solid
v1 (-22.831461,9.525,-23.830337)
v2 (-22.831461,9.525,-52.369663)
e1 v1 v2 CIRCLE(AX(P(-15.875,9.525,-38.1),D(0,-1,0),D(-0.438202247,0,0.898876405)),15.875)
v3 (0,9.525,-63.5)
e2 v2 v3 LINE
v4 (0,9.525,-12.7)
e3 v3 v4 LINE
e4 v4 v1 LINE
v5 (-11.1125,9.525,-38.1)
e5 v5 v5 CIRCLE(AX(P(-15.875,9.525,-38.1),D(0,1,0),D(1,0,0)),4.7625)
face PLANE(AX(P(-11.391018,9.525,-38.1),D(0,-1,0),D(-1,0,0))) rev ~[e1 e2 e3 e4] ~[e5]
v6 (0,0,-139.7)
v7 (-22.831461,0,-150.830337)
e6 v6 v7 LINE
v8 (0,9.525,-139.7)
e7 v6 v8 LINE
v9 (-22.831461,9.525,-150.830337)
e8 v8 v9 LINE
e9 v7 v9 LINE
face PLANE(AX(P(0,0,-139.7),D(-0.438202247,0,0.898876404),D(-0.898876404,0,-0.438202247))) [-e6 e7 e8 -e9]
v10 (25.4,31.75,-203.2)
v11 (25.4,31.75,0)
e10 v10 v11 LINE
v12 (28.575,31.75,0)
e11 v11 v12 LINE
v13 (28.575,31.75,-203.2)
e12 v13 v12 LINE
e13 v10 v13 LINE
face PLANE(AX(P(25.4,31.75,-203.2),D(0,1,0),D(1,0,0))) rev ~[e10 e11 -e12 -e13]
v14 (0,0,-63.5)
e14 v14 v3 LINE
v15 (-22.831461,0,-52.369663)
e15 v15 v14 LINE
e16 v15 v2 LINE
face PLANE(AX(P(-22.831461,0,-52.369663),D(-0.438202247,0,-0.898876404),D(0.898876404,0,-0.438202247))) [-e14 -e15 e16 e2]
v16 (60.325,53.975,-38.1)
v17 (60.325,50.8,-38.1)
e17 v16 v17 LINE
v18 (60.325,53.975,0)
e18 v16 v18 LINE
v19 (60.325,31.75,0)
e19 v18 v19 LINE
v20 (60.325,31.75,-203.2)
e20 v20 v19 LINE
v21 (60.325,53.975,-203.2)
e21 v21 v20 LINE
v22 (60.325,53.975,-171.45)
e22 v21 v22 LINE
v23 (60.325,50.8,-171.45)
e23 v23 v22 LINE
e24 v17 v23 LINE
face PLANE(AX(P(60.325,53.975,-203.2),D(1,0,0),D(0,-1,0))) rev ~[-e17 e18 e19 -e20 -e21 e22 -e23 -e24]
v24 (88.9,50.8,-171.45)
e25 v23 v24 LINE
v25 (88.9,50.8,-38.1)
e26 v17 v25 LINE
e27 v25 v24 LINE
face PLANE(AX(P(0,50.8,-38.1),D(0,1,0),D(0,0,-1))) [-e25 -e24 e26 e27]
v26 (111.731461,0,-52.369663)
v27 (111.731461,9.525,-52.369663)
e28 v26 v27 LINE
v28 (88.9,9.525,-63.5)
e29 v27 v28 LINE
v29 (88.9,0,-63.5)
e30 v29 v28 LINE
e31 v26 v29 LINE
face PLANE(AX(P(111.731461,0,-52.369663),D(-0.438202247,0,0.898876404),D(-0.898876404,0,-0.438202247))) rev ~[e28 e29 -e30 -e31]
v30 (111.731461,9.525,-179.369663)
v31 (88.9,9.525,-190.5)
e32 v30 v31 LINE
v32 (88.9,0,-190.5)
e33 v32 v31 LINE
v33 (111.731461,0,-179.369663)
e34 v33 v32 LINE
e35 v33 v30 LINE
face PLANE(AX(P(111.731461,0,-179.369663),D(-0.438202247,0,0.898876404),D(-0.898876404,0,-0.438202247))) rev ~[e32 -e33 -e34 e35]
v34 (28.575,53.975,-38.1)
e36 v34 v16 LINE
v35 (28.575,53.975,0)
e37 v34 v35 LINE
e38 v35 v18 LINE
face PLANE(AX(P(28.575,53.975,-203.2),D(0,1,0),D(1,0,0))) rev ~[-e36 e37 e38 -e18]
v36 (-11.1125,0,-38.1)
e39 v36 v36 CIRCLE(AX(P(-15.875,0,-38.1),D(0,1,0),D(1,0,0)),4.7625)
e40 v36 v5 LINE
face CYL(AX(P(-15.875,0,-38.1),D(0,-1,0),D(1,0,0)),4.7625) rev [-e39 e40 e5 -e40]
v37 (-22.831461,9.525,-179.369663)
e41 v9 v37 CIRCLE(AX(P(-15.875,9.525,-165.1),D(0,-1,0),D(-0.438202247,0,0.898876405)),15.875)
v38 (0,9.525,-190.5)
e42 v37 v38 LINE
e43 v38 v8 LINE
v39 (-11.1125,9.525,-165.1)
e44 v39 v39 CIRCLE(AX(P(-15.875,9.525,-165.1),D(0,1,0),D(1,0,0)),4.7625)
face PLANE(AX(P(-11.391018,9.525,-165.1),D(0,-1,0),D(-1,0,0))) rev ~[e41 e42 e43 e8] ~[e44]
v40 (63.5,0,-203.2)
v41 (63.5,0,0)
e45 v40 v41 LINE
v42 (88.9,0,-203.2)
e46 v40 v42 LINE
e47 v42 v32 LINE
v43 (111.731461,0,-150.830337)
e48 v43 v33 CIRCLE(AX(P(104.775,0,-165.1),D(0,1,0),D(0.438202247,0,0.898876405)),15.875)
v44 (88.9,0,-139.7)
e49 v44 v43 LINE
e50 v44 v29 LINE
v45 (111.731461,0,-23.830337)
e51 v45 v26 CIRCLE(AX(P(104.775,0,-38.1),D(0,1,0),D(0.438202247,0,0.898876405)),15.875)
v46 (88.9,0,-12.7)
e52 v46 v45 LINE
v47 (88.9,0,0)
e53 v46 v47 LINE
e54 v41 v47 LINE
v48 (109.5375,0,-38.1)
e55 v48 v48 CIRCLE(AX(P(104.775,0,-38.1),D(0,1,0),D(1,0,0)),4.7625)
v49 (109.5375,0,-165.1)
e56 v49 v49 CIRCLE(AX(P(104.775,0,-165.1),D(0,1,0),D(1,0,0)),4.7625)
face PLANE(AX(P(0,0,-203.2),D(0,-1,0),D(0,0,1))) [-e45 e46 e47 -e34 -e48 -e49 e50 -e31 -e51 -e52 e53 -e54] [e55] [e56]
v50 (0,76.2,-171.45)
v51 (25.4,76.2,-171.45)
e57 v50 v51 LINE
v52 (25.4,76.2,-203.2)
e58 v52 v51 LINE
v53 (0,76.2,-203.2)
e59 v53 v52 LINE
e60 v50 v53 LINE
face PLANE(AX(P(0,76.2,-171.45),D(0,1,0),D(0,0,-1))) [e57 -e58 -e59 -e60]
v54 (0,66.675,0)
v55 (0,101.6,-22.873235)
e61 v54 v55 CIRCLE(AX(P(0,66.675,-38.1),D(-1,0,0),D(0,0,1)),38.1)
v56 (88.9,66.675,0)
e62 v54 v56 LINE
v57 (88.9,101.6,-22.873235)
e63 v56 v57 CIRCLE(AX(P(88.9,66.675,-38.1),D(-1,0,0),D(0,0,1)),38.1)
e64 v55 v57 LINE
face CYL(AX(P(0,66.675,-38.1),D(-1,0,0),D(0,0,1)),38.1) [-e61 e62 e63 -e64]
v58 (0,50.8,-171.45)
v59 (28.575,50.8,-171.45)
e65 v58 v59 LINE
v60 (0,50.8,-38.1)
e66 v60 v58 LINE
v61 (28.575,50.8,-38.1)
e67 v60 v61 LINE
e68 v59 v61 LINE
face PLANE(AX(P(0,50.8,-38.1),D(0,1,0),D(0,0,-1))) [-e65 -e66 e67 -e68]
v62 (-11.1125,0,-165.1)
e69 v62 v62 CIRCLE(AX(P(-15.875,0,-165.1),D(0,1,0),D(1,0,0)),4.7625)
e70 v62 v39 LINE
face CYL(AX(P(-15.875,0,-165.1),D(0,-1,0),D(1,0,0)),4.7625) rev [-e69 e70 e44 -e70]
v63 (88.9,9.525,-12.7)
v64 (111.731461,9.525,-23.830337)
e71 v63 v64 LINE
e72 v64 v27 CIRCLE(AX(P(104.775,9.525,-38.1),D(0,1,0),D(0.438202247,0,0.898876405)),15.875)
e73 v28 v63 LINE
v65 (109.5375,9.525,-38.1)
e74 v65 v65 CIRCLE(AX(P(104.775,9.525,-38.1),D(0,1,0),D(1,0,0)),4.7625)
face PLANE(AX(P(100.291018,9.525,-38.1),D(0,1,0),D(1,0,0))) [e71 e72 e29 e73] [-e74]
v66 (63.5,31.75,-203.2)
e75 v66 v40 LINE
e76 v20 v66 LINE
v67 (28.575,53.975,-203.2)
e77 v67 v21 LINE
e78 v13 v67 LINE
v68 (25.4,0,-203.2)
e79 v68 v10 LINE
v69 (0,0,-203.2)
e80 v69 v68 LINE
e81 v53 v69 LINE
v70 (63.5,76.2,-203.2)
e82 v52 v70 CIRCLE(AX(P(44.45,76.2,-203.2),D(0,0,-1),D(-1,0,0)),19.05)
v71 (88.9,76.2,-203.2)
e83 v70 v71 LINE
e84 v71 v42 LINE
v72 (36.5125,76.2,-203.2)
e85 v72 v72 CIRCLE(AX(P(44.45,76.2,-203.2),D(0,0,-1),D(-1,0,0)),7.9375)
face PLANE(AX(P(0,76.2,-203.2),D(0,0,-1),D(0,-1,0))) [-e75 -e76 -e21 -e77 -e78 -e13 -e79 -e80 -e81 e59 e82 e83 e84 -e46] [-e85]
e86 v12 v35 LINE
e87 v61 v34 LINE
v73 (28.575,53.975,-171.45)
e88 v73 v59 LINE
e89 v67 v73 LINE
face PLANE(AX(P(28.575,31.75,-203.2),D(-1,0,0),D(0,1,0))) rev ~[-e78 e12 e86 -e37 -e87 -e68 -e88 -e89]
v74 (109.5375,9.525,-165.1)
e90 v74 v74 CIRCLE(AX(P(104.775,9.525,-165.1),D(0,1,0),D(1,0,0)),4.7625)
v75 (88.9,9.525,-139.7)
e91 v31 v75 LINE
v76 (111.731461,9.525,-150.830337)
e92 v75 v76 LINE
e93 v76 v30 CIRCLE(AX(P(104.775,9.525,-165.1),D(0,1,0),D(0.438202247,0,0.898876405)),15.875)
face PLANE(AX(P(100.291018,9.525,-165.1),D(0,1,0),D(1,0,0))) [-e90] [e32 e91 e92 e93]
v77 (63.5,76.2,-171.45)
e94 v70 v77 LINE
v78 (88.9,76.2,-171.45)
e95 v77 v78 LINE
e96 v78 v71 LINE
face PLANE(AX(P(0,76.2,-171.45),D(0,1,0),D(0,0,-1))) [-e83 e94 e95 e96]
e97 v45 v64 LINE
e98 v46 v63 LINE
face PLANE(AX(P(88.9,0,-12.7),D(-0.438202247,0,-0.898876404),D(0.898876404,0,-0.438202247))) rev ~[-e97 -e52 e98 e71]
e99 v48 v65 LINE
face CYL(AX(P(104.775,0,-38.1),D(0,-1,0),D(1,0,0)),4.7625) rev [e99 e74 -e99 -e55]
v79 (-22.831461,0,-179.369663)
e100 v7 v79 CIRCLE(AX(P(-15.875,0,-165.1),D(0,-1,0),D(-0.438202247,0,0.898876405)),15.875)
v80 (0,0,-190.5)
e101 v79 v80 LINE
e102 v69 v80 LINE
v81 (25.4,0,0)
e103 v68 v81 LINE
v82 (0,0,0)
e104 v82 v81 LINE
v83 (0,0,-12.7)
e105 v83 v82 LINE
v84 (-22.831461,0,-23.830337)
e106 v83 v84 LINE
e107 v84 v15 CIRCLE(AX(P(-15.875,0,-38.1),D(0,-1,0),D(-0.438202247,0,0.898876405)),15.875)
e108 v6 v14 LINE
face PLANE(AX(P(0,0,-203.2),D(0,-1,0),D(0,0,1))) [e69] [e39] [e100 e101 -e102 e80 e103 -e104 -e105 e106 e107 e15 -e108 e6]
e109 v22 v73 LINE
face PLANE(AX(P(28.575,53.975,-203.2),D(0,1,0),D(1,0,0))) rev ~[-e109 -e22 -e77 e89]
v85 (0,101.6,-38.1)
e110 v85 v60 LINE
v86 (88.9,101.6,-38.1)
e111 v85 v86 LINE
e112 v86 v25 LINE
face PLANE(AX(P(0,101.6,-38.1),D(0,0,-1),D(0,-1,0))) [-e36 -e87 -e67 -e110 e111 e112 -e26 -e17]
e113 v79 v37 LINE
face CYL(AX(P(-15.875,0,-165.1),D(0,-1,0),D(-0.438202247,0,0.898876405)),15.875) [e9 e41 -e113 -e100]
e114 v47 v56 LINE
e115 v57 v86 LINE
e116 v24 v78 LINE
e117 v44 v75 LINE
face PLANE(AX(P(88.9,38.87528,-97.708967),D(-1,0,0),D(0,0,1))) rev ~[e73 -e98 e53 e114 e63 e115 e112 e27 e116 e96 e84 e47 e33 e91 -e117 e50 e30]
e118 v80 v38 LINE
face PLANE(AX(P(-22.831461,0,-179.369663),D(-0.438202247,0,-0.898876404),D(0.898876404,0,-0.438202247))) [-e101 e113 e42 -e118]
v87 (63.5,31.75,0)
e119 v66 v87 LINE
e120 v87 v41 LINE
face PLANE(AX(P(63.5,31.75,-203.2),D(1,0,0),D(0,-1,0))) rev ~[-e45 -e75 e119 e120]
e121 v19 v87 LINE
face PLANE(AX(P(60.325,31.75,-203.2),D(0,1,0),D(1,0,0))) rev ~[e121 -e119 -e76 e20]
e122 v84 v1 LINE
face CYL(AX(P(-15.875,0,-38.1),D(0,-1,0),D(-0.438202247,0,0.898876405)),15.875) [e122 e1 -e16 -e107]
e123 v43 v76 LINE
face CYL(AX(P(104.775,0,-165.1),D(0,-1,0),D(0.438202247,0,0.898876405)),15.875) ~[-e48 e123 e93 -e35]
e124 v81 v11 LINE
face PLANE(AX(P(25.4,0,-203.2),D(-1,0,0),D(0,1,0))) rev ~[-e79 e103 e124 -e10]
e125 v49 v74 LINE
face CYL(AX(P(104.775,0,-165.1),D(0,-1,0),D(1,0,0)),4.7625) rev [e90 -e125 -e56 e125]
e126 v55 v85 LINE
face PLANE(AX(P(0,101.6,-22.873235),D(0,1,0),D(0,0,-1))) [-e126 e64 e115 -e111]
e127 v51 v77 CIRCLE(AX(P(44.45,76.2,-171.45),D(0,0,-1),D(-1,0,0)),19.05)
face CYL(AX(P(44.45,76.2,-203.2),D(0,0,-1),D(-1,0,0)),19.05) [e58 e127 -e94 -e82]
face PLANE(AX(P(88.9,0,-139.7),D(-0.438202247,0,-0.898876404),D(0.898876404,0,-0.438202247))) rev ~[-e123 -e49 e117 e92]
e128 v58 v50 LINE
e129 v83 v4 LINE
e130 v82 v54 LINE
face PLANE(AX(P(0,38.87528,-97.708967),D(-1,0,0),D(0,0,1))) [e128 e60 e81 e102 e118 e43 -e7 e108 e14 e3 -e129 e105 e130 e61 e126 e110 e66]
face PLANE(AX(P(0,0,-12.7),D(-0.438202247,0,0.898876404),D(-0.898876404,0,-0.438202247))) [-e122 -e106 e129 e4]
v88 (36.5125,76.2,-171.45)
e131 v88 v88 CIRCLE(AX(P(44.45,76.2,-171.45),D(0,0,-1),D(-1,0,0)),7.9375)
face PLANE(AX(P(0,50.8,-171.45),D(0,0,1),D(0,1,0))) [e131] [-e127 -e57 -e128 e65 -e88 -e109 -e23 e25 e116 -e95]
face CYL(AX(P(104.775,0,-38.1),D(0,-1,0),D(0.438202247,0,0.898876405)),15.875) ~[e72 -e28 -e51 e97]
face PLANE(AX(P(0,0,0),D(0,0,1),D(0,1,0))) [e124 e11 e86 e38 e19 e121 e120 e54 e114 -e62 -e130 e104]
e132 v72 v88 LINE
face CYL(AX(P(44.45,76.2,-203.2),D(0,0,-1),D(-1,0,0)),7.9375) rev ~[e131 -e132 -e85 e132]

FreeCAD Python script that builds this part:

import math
import FreeCAD as App
import Part
import Sketcher

V = App.Vector
Q = App.Units.Quantity


def add_polygon(sketch, points):
    """Adds a closed chain of lines whose ends are joined by coincident constraints."""
    first, n = sketch.GeometryCount, len(points)
    for a, b in zip(points, points[1:] + points[:1]):
        sketch.addGeometry(Part.LineSegment(App.Vector(*a, 0), App.Vector(*b, 0)), False)
    for i in range(n):
        sketch.addConstraint(Sketcher.Constraint("Coincident", first + i, 2, first + (i + 1) % n, 1))

doc = App.newDocument("Part")
body = doc.addObject("PartDesign::Body", "Body")

sketch1 = body.newObject("Sketcher::SketchObject", "Sketch")
sketch1.AttachmentSupport = (doc.getObject("YZ_Plane"), [""])
sketch1.MapMode = "FlatFace"
sketch1.addGeometry([
    Part.LineSegment(V(67, 0, 0), V(0, 0, 0)),
    Part.LineSegment(V(0, 0, 0), V(0, -203, 0)),
    Part.LineSegment(V(0, -203, 0), V(76, -203, 0)),
    Part.LineSegment(V(76, -203, 0), V(76, -171, 0)),
    Part.LineSegment(V(76, -171, 0), V(51, -171, 0)),
    Part.LineSegment(V(51, -171, 0), V(51, -38, 0)),
    Part.LineSegment(V(51, -38, 0), V(102, -38, 0)),
    Part.LineSegment(V(102, -38, 0), V(102, -23, 0)),
    Part.ArcOfCircle(Part.Circle(V(67, -38, 0), V(0, 0, 1), 38), math.radians(24), math.radians(90)),
], False)
sketch1.addConstraint([
    Sketcher.Constraint("Coincident", 0, 2, 1, 1),
    Sketcher.Constraint("Coincident", 1, 2, 2, 1),
    Sketcher.Constraint("Coincident", 2, 2, 3, 1),
    Sketcher.Constraint("Coincident", 3, 2, 4, 1),
    Sketcher.Constraint("Coincident", 4, 2, 5, 1),
    Sketcher.Constraint("Coincident", 5, 2, 6, 1),
    Sketcher.Constraint("Coincident", 6, 2, 7, 1),
    Sketcher.Constraint("Coincident", 7, 2, 8, 1),
    Sketcher.Constraint("Tangent", 8, 2, 0, 1),
    Sketcher.Constraint("Horizontal", 0),
    Sketcher.Constraint("Vertical", 1),
    Sketcher.Constraint("Horizontal", 2),
    Sketcher.Constraint("Vertical", 3),
    Sketcher.Constraint("Horizontal", 4),
    Sketcher.Constraint("Vertical", 5),
    Sketcher.Constraint("Horizontal", 6),
    Sketcher.Constraint("Vertical", 7),
    Sketcher.Constraint("Coincident", 0, 2, -1, 1),
    Sketcher.Constraint("Horizontal", 8, 3, 5, 2),
    Sketcher.Constraint("Radius", 8, Q("1.5 in")),
    Sketcher.Constraint("DistanceX", 2, 1, 2, 2, Q("3 in")),
    Sketcher.Constraint("DistanceX", 4, 2, 4, 1, Q("1 in")),
    Sketcher.Constraint("DistanceX", 6, 1, 6, 2, Q("2 in")),
    Sketcher.Constraint("DistanceY", 1, 2, 1, 1, Q("8 in")),
    Sketcher.Constraint("DistanceY", 3, 1, 3, 2, Q("1.25 in")),
    Sketcher.Constraint("DistanceX", 0, 2, 0, 1, Q("2.625 in")),
])
pad1 = body.newObject("PartDesign::Pad", "Pad")
pad1.Profile = sketch1
pad1.Length = Q("3.5 in")

sketch2 = body.newObject("Sketcher::SketchObject", "Sketch001")
sketch2.AttachmentSupport = (doc.getObject("XY_Plane"), [""])
sketch2.MapMode = "FlatFace"
sketch2.AttachmentOffset = App.Placement(V(0, 0, -8 * 25.4), App.Rotation())
add_polygon(sketch2, [(25.4, 0), (25.4, 31.8), (28.6, 31.8), (28.6, 54), (60.3, 54), (60.3, 31.8), (63.5, 31.8), (63.5, 0)])
sketch2.addConstraint([
    Sketcher.Constraint("Vertical", 0),
    Sketcher.Constraint("Horizontal", 1),
    Sketcher.Constraint("Vertical", 2),
    Sketcher.Constraint("Horizontal", 3),
    Sketcher.Constraint("Vertical", 4),
    Sketcher.Constraint("Horizontal", 5),
    Sketcher.Constraint("Vertical", 6),
    Sketcher.Constraint("Horizontal", 7),
    Sketcher.Constraint("PointOnObject", 6, 2, -1),
    Sketcher.Constraint("Horizontal", 1, 2, 4, 2),
    Sketcher.Constraint("Equal", 1, 5),
    Sketcher.Constraint("Equal", 3, 0),
    Sketcher.Constraint("DistanceX", 7, 2, 7, 1, Q("1.5 in")),
    Sketcher.Constraint("DistanceX", -1, 1, 0, 2, Q("1 in")),
    Sketcher.Constraint("DistanceX", 3, 1, 3, 2, Q("1.25 in")),
    Sketcher.Constraint("DistanceY", 2, 1, 2, 2, Q("0.875 in")),
])
pocket1 = body.newObject("PartDesign::Pocket", "Pocket")
pocket1.Profile = sketch2
pocket1.Length = Q("8 in")
pocket1.Reversed = True

sketch3 = body.newObject("Sketcher::SketchObject", "Sketch002")
sketch3.AttachmentSupport = (doc.getObject("XY_Plane"), [""])
sketch3.MapMode = "FlatFace"
sketch3.AttachmentOffset = App.Placement(V(0, 0, -8 * 25.4), App.Rotation())
sketch3.addGeometry([
    Part.LineSegment(V(64, 76, 0), V(25, 76, 0)),
    Part.ArcOfCircle(Part.Circle(V(44, 76, 0), V(0, 0, 1), 19), math.radians(0), math.radians(180)),
], False)
sketch3.addConstraint([
    Sketcher.Constraint("Coincident", 0, 1, 1, 1),
    Sketcher.Constraint("Coincident", 1, 2, 0, 2),
    Sketcher.Constraint("Horizontal", 0),
    Sketcher.Constraint("Horizontal", 1, 3, 0, 1),
    Sketcher.Constraint("Radius", 1, Q("0.75 in")),
    Sketcher.Constraint("DistanceY", -1, 1, 1, 3, Q("3 in")),
    Sketcher.Constraint("DistanceX", -1, 1, 1, 2, Q("1 in")),
])
pad2 = body.newObject("PartDesign::Pad", "Pad001")
pad2.Profile = sketch3
pad2.Length = Q("1.25 in")

sketch4 = body.newObject("Sketcher::SketchObject", "Sketch003")
sketch4.AttachmentSupport = (doc.getObject("XY_Plane"), [""])
sketch4.MapMode = "FlatFace"
sketch4.AttachmentOffset = App.Placement(V(0, 0, -8 * 25.4), App.Rotation())
sketch4.addGeometry(Part.Circle(V(44, 76, 0), V(0, 0, 1), 8), False)
sketch4.addConstraint([
    Sketcher.Constraint("Diameter", 0, Q("0.625 in")),
    Sketcher.Constraint("DistanceY", -1, 1, 0, 3, Q("3 in")),
    Sketcher.Constraint("DistanceX", -1, 1, 0, 3, Q("1.75 in")),
])
pocket2 = body.newObject("PartDesign::Pocket", "Pocket001")
pocket2.Profile = sketch4
pocket2.Length = Q("1.25 in")
pocket2.Reversed = True

sketch5 = body.newObject("Sketcher::SketchObject", "Sketch004")
sketch5.AttachmentSupport = (doc.getObject("XZ_Plane"), [""])
sketch5.MapMode = "FlatFace"
sketch5.addGeometry([
    Part.ArcOfCircle(Part.Circle(V(-15.9, -38.1, 0), V(0, 0, 1), 15.9), math.radians(116), math.radians(244)),
    Part.LineSegment(V(-22.8, -23.8, 0), V(0, -12.7, 0)),
    Part.LineSegment(V(0, -12.7, 0), V(0, -63.5, 0)),
    Part.LineSegment(V(0, -63.5, 0), V(-22.8, -52.4, 0)),
    Part.Circle(V(-15.9, -38.1, 0), V(0, 0, 1), 4.8),
    Part.ArcOfCircle(Part.Circle(V(-15.9, -165.1, 0), V(0, 0, 1), 15.9), math.radians(116), math.radians(244)),
    Part.LineSegment(V(-22.8, -150.8, 0), V(0, -139.7, 0)),
    Part.LineSegment(V(0, -139.7, 0), V(0, -190.5, 0)),
    Part.LineSegment(V(0, -190.5, 0), V(-22.8, -179.4, 0)),
    Part.Circle(V(-15.9, -165.1, 0), V(0, 0, 1), 4.8),
    Part.LineSegment(V(88.9, -139.7, 0), V(111.7, -150.8, 0)),
    Part.ArcOfCircle(Part.Circle(V(104.8, -165.1, 0), V(0, 0, 1), 15.9), math.radians(-64), math.radians(64)),
    Part.LineSegment(V(111.7, -179.4, 0), V(88.9, -190.5, 0)),
    Part.LineSegment(V(88.9, -190.5, 0), V(88.9, -139.7, 0)),
    Part.Circle(V(104.8, -165.1, 0), V(0, 0, 1), 4.8),
    Part.LineSegment(V(88.9, -12.7, 0), V(111.7, -23.8, 0)),
    Part.ArcOfCircle(Part.Circle(V(104.8, -38.1, 0), V(0, 0, 1), 15.9), math.radians(-64), math.radians(64)),
    Part.LineSegment(V(111.7, -52.4, 0), V(88.9, -63.5, 0)),
    Part.LineSegment(V(88.9, -63.5, 0), V(88.9, -12.7, 0)),
    Part.Circle(V(104.8, -38.1, 0), V(0, 0, 1), 4.8),
], False)
sketch5.addConstraint([
    Sketcher.Constraint("Tangent", 0, 1, 1, 1),
    Sketcher.Constraint("Coincident", 1, 2, 2, 1),
    Sketcher.Constraint("Coincident", 2, 2, 3, 1),
    Sketcher.Constraint("Tangent", 3, 2, 0, 2),
    Sketcher.Constraint("Tangent", 5, 1, 6, 1),
    Sketcher.Constraint("Coincident", 6, 2, 7, 1),
    Sketcher.Constraint("Coincident", 7, 2, 8, 1),
    Sketcher.Constraint("Tangent", 8, 2, 5, 2),
    Sketcher.Constraint("Tangent", 10, 2, 11, 2),
    Sketcher.Constraint("Tangent", 11, 1, 12, 1),
    Sketcher.Constraint("Coincident", 12, 2, 13, 1),
    Sketcher.Constraint("Coincident", 13, 2, 10, 1),
    Sketcher.Constraint("Tangent", 15, 2, 16, 2),
    Sketcher.Constraint("Tangent", 16, 1, 17, 1),
    Sketcher.Constraint("Coincident", 17, 2, 18, 1),
    Sketcher.Constraint("Coincident", 18, 2, 15, 1),
    Sketcher.Constraint("Vertical", 2),
    Sketcher.Constraint("Vertical", 7),
    Sketcher.Constraint("Vertical", 13),
    Sketcher.Constraint("Vertical", 18),
    Sketcher.Constraint("Coincident", 4, 3, 0, 3),
    Sketcher.Constraint("Coincident", 9, 3, 5, 3),
    Sketcher.Constraint("Coincident", 14, 3, 11, 3),
    Sketcher.Constraint("Coincident", 19, 3, 16, 3),
    Sketcher.Constraint("Equal", 0, 5),
    Sketcher.Constraint("Equal", 4, 9),
    Sketcher.Constraint("Equal", 5, 11),
    Sketcher.Constraint("Equal", 9, 14),
    Sketcher.Constraint("Equal", 11, 16),
    Sketcher.Constraint("Equal", 14, 19),
    Sketcher.Constraint("PointOnObject", 1, 2, -2),
    Sketcher.Constraint("PointOnObject", 6, 2, -2),
    Sketcher.Constraint("Parallel", 1, 6),
    Sketcher.Constraint("Parallel", 3, 8),
    Sketcher.Constraint("Parallel", 8, 10),
    Sketcher.Constraint("Parallel", 6, 12),
    Sketcher.Constraint("Parallel", 10, 15),
    Sketcher.Constraint("Parallel", 12, 17),
    Sketcher.Constraint("Horizontal", 9, 3, 11, 3),
    Sketcher.Constraint("Horizontal", 4, 3, 16, 3),
    Sketcher.Constraint("Horizontal", 5, 1, 10, 2),
    Sketcher.Constraint("Horizontal", 7, 2, 12, 2),
    Sketcher.Constraint("Horizontal", 2, 2, 17, 2),
    Sketcher.Constraint("Vertical", 4, 3, 5, 3),
    Sketcher.Constraint("Vertical", 14, 3, 16, 3),
    Sketcher.Constraint("DistanceY", 2, 2, 2, 1, Q("2 in")),
    Sketcher.Constraint("Distance", 1, Q("1 in")),
    Sketcher.Constraint("Diameter", 4, Q("0.375 in")),
    Sketcher.Constraint("Radius", 0, Q("0.625 in")),
    Sketcher.Constraint("DistanceY", 5, 3, 0, 3, Q("5 in")),
    Sketcher.Constraint("DistanceY", 0, 3, -1, 1, Q("1.5 in")),
    Sketcher.Constraint("DistanceX", -1, 1, 12, 2, Q("3.5 in")),
])
pad3 = body.newObject("PartDesign::Pad", "Pad002")
pad3.Profile = sketch5
pad3.Length = Q("0.375 in")
pad3.Reversed = True

doc.recompute()
